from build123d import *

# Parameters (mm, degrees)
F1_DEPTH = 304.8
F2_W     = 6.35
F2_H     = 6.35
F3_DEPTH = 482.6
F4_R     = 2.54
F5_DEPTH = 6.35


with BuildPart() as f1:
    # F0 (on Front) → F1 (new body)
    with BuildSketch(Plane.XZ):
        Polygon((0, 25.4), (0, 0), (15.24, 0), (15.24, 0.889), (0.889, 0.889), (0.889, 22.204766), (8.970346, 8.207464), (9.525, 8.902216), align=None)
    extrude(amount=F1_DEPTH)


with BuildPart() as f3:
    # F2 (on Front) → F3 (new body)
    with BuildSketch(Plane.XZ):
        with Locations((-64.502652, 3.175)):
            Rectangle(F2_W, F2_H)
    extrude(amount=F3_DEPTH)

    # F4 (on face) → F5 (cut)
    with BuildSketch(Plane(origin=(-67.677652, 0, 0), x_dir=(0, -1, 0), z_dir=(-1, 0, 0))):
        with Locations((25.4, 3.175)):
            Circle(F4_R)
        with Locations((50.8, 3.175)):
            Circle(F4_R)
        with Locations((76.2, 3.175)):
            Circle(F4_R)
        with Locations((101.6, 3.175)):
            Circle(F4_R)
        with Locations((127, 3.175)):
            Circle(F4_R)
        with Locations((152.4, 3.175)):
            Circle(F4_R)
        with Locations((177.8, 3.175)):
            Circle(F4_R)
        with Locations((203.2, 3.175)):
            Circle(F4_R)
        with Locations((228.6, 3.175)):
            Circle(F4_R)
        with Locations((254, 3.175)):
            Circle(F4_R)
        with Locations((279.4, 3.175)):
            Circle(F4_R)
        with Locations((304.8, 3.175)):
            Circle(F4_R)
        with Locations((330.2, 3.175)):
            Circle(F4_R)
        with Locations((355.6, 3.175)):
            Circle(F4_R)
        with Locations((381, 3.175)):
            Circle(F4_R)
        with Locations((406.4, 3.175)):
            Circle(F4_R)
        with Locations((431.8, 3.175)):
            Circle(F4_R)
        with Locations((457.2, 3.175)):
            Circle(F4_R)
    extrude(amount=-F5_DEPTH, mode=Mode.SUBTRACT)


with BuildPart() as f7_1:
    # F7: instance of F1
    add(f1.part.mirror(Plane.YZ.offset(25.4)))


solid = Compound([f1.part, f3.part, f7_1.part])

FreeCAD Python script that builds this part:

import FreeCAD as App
import Part
import Sketcher
from FreeCAD import Vector
Q = App.Units.Quantity


def add_polygon(sketch, points):
    """Adds a closed chain of lines whose ends are joined by coincident constraints."""
    first, n = sketch.GeometryCount, len(points)
    for a, b in zip(points, points[1:] + points[:1]):
        sketch.addGeometry(Part.LineSegment(App.Vector(*a, 0), App.Vector(*b, 0)), False)
    for i in range(n):
        sketch.addConstraint(Sketcher.Constraint("Coincident", first + i, 2, first + (i + 1) % n, 1))

doc = App.newDocument("Part")
body = doc.addObject("PartDesign::Body", "Body")

# Sketch on XZ plane
sketch1 = body.newObject("Sketcher::SketchObject", "Sketch")
sketch1.AttachmentSupport = (doc.getObject("XZ_Plane"), [""])
sketch1.MapMode = "FlatFace"
add_polygon(sketch1, [(0, 25.4), (0, 0), (15.2, 0), (15.2, 0.9), (0.9, 0.9), (0.9, 22.2), (9, 8.2), (9.5, 8.9)])  # lines 0-7
sketch1.addConstraint([
    Sketcher.Constraint("Vertical", 0),
    Sketcher.Constraint("Horizontal", 1),
    Sketcher.Constraint("Vertical", 2),
    Sketcher.Constraint("Horizontal", 3),
    Sketcher.Constraint("Vertical", 4),
    Sketcher.Constraint("Coincident", 0, 2, -1, 1),
    Sketcher.Constraint("Parallel", 5, 7),
    Sketcher.Constraint("DistanceY", 0, 2, 0, 1, Q("1 in")),
    Sketcher.Constraint("DistanceX", 1, 1, 1, 2, Q("0.6 in")),
    Sketcher.Constraint("Angle", 5, Q("-60 deg")),
    Sketcher.Constraint("Distance", 7, Q("0.75 in")),
    Sketcher.Constraint("DistanceX", 3, 2, 3, 1, Q("0.565 in")),
    Sketcher.Constraint("DistanceY", 2, 1, 2, 2, Q("0.035 in")),
    Sketcher.Constraint("Distance", 6, Q("0.035 in")),
    Sketcher.Constraint("DistanceY", 4, 1, 4, 2, Q("21.315766 mm")),
])
pad1 = body.newObject("PartDesign::Pad", "Pad")
pad1.Profile = sketch1
pad1.Length = Q("12 in")
body2 = doc.addObject("PartDesign::Body", "Body001")

# Sketch on XZ plane
sketch2 = body2.newObject("Sketcher::SketchObject", "Sketch001")
sketch2.AttachmentSupport = (doc.getObject("XZ_Plane001"), [""])
sketch2.MapMode = "FlatFace"
add_polygon(sketch2, [(-68, 6), (-68, 0), (-61, 0), (-61, 6)])  # lines 0-3
sketch2.addConstraint([
    Sketcher.Constraint("Vertical", 0),
    Sketcher.Constraint("Horizontal", 1),
    Sketcher.Constraint("Vertical", 2),
    Sketcher.Constraint("Horizontal", 3),
    Sketcher.Constraint("PointOnObject", 0, 2, -1),
    Sketcher.Constraint("Equal", 3, 0),
    Sketcher.Constraint("DistanceX", 1, 1, 1, 2, Q("0.25 in")),
    Sketcher.Constraint("DistanceX", 0, 2, -1, 1, Q("67.677652 mm")),
])
pad2 = body2.newObject("PartDesign::Pad", "Pad001")
pad2.Profile = sketch2
pad2.Length = Q("19 in")

# Sketch on YZ plane
sketch3 = body2.newObject("Sketcher::SketchObject", "Sketch002")
sketch3.AttachmentSupport = (doc.getObject("YZ_Plane001"), [""])
sketch3.MapMode = "FlatFace"
sketch3.AttachmentOffset = App.Placement(Vector(0, 0, -67.677652), App.Rotation())
sketch3.addGeometry([
    Part.Circle(Vector(-25.4, 3.2, 0), Vector(0, 0, 1), 2.5),  # 0
    Part.Circle(Vector(-50.8, 3.2, 0), Vector(0, 0, 1), 2.5),  # 1
    Part.Circle(Vector(-76.2, 3.2, 0), Vector(0, 0, 1), 2.5),  # 2
    Part.Circle(Vector(-101.6, 3.2, 0), Vector(0, 0, 1), 2.5),  # 3
    Part.Circle(Vector(-127, 3.2, 0), Vector(0, 0, 1), 2.5),  # 4
    Part.Circle(Vector(-152.4, 3.2, 0), Vector(0, 0, 1), 2.5),  # 5
    Part.Circle(Vector(-177.8, 3.2, 0), Vector(0, 0, 1), 2.5),  # 6
    Part.Circle(Vector(-203.2, 3.2, 0), Vector(0, 0, 1), 2.5),  # 7
    Part.Circle(Vector(-228.6, 3.2, 0), Vector(0, 0, 1), 2.5),  # 8
    Part.Circle(Vector(-254, 3.2, 0), Vector(0, 0, 1), 2.5),  # 9
    Part.Circle(Vector(-279.4, 3.2, 0), Vector(0, 0, 1), 2.5),  # 10
    Part.Circle(Vector(-304.8, 3.2, 0), Vector(0, 0, 1), 2.5),  # 11
    Part.Circle(Vector(-330.2, 3.2, 0), Vector(0, 0, 1), 2.5),  # 12
    Part.Circle(Vector(-355.6, 3.2, 0), Vector(0, 0, 1), 2.5),  # 13
    Part.Circle(Vector(-381, 3.2, 0), Vector(0, 0, 1), 2.5),  # 14
    Part.Circle(Vector(-406.4, 3.2, 0), Vector(0, 0, 1), 2.5),  # 15
    Part.Circle(Vector(-431.8, 3.2, 0), Vector(0, 0, 1), 2.5),  # 16
    Part.Circle(Vector(-457.2, 3.2, 0), Vector(0, 0, 1), 2.5),  # 17
], False)
sketch3.addConstraint([
    Sketcher.Constraint("Equal", 0, 1),
    Sketcher.Constraint("Equal", 1, 2),
    Sketcher.Constraint("Equal", 2, 3),
    Sketcher.Constraint("Equal", 3, 4),
    Sketcher.Constraint("Equal", 4, 5),
    Sketcher.Constraint("Equal", 5, 6),
    Sketcher.Constraint("Equal", 6, 7),
    Sketcher.Constraint("Equal", 7, 8),
    Sketcher.Constraint("Equal", 8, 9),
    Sketcher.Constraint("Equal", 9, 10),
    Sketcher.Constraint("Equal", 10, 11),
    Sketcher.Constraint("Equal", 11, 12),
    Sketcher.Constraint("Equal", 12, 13),
    Sketcher.Constraint("Equal", 13, 14),
    Sketcher.Constraint("Equal", 14, 15),
    Sketcher.Constraint("Equal", 15, 16),
    Sketcher.Constraint("Equal", 16, 17),
    Sketcher.Constraint("Horizontal", 0, 3, 1, 3),
    Sketcher.Constraint("Horizontal", 1, 3, 2, 3),
    Sketcher.Constraint("Horizontal", 2, 3, 3, 3),
    Sketcher.Constraint("Horizontal", 3, 3, 4, 3),
    Sketcher.Constraint("Horizontal", 4, 3, 5, 3),
    Sketcher.Constraint("Horizontal", 5, 3, 6, 3),
    Sketcher.Constraint("Horizontal", 6, 3, 7, 3),
    Sketcher.Constraint("Horizontal", 7, 3, 8, 3),
    Sketcher.Constraint("Horizontal", 8, 3, 9, 3),
    Sketcher.Constraint("Horizontal", 9, 3, 10, 3),
    Sketcher.Constraint("Horizontal", 10, 3, 11, 3),
    Sketcher.Constraint("Horizontal", 11, 3, 12, 3),
    Sketcher.Constraint("Horizontal", 12, 3, 13, 3),
    Sketcher.Constraint("Horizontal", 13, 3, 14, 3),
    Sketcher.Constraint("Horizontal", 14, 3, 15, 3),
    Sketcher.Constraint("Horizontal", 15, 3, 16, 3),
    Sketcher.Constraint("Horizontal", 16, 3, 17, 3),
    Sketcher.Constraint("Diameter", 0, Q("0.2 in")),
    Sketcher.Constraint("DistanceX", 0, 3, -1, 1, Q("1 in")),
    Sketcher.Constraint("DistanceX", 1, 3, -1, 1, Q("2 in")),
    Sketcher.Constraint("DistanceX", 2, 3, -1, 1, Q("3 in")),
    Sketcher.Constraint("DistanceX", 3, 3, -1, 1, Q("4 in")),
    Sketcher.Constraint("DistanceX", 4, 3, -1, 1, Q("5 in")),
    Sketcher.Constraint("DistanceX", 5, 3, -1, 1, Q("6 in")),
    Sketcher.Constraint("DistanceX", 6, 3, -1, 1, Q("7 in")),
    Sketcher.Constraint("DistanceX", 7, 3, -1, 1, Q("8 in")),
    Sketcher.Constraint("DistanceX", 8, 3, -1, 1, Q("9 in")),
    Sketcher.Constraint("DistanceX", 9, 3, -1, 1, Q("10 in")),
    Sketcher.Constraint("DistanceX", 10, 3, -1, 1, Q("11 in")),
    Sketcher.Constraint("DistanceX", 11, 3, -1, 1, Q("12 in")),
    Sketcher.Constraint("DistanceX", 12, 3, -1, 1, Q("13 in")),
    Sketcher.Constraint("DistanceX", 13, 3, -1, 1, Q("14 in")),
    Sketcher.Constraint("DistanceX", 14, 3, -1, 1, Q("15 in")),
    Sketcher.Constraint("DistanceX", 15, 3, -1, 1, Q("16 in")),
    Sketcher.Constraint("DistanceX", 16, 3, -1, 1, Q("17 in")),
    Sketcher.Constraint("DistanceX", 17, 3, -1, 1, Q("18 in")),
    Sketcher.Constraint("DistanceY", -1, 1, 0, 3, Q("0.125 in")),
])
pocket1 = body2.newObject("PartDesign::Pocket", "Pocket")
pocket1.Profile = sketch3
pocket1.Length = Q("0.25 in")
pocket1.Reversed = True
body3 = doc.addObject("PartDesign::Body", "Body002")
doc.recompute()

mirroring = doc.addObject("Part::Mirroring", "Mirroring")
mirroring.Source = body
mirroring.Base = Vector(25.4, 0, 0)
mirroring.Normal = Vector(1, 0, 0)
body3.BaseFeature = mirroring
doc.recompute()
mirroring.Visibility = False

doc.recompute()
